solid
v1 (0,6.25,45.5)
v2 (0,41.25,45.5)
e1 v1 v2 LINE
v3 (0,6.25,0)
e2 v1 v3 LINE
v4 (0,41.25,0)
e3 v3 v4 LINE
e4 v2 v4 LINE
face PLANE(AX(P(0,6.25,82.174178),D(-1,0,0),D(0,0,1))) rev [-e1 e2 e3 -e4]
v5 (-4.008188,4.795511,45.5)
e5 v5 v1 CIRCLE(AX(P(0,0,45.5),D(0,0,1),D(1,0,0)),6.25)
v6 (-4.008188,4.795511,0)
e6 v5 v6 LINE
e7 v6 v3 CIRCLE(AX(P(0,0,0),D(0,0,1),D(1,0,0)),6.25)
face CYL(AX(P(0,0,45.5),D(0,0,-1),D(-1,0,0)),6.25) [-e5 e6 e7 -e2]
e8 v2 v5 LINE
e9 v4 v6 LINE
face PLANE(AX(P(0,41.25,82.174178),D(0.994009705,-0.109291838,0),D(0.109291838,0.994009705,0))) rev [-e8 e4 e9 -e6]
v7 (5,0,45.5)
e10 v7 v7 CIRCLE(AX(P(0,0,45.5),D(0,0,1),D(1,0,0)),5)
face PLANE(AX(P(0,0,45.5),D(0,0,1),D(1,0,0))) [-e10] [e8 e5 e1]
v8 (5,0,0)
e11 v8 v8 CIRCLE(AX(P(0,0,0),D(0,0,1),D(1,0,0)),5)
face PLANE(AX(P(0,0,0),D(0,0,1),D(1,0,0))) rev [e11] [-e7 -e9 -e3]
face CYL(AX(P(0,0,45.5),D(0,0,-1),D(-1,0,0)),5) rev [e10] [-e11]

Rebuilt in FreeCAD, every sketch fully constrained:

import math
import FreeCAD as App
import Part
import Sketcher

V = App.Vector
Q = App.Units.Quantity

doc = App.newDocument("Part")
body = doc.addObject("PartDesign::Body", "Body")

# Sketch on XY plane
sketch1 = doc.addObject("Sketcher::SketchObject", "Sketch")
body.addObject(sketch1)
sketch1.AttachmentSupport = (doc.XY_Plane, [""])
sketch1.MapMode = "FlatFace"
sketch1.addGeometry([
    Part.Circle(V(0, 0, 0), V(0, 0, 1), 6),
    Part.Circle(V(0, 0, 0), V(0, 0, 1), 5),
], False)
sketch1.addConstraint([
    Sketcher.Constraint("Coincident", 0, 3, -1, 1),
    Sketcher.Constraint("Coincident", 1, 3, -1, 1),
    Sketcher.Constraint("Diameter", 1, Q("10 mm")),
    Sketcher.Constraint("Diameter", 0, Q("12.5 mm")),
])
pad1 = doc.addObject("PartDesign::Pad", "Pad")
body.addObject(pad1)
pad1.Profile = sketch1
pad1.Length = 45.5

# Sketch on XY plane
sketch2 = doc.addObject("Sketcher::SketchObject", "Sketch001")
body.addObject(sketch2)
sketch2.AttachmentSupport = (doc.XY_Plane, [""])
sketch2.MapMode = "FlatFace"
sketch2.addGeometry([
    Part.LineSegment(V(0, 6.2, 0), V(0, 41.2, 0)),
    Part.LineSegment(V(0, 41.2, 0), V(-4, 4.8, 0)),
    Part.ArcOfCircle(Part.Circle(V(0, 0, 0), V(0, 0, 1), 6.3), math.radians(90), math.radians(130)),
], False)
sketch2.addConstraint([
    Sketcher.Constraint("Coincident", 0, 2, 1, 1),
    Sketcher.Constraint("Coincident", 1, 2, 2, 2),
    Sketcher.Constraint("Coincident", 2, 1, 0, 1),
    Sketcher.Constraint("Vertical", 0),
    Sketcher.Constraint("Coincident", 2, 3, -1, 1),
    Sketcher.Constraint("PointOnObject", 0, 2, -2),
    Sketcher.Constraint("DistanceY", 0, 1, 0, 2, Q("35 mm")),
    Sketcher.Constraint("Radius", 2, Q("6.25 mm")),
    Sketcher.Constraint("Distance", 1, Q("36.674178 mm")),
])
pad2 = doc.addObject("PartDesign::Pad", "Pad001")
body.addObject(pad2)
pad2.Profile = sketch2
pad2.Length = 45.5

doc.recompute()
